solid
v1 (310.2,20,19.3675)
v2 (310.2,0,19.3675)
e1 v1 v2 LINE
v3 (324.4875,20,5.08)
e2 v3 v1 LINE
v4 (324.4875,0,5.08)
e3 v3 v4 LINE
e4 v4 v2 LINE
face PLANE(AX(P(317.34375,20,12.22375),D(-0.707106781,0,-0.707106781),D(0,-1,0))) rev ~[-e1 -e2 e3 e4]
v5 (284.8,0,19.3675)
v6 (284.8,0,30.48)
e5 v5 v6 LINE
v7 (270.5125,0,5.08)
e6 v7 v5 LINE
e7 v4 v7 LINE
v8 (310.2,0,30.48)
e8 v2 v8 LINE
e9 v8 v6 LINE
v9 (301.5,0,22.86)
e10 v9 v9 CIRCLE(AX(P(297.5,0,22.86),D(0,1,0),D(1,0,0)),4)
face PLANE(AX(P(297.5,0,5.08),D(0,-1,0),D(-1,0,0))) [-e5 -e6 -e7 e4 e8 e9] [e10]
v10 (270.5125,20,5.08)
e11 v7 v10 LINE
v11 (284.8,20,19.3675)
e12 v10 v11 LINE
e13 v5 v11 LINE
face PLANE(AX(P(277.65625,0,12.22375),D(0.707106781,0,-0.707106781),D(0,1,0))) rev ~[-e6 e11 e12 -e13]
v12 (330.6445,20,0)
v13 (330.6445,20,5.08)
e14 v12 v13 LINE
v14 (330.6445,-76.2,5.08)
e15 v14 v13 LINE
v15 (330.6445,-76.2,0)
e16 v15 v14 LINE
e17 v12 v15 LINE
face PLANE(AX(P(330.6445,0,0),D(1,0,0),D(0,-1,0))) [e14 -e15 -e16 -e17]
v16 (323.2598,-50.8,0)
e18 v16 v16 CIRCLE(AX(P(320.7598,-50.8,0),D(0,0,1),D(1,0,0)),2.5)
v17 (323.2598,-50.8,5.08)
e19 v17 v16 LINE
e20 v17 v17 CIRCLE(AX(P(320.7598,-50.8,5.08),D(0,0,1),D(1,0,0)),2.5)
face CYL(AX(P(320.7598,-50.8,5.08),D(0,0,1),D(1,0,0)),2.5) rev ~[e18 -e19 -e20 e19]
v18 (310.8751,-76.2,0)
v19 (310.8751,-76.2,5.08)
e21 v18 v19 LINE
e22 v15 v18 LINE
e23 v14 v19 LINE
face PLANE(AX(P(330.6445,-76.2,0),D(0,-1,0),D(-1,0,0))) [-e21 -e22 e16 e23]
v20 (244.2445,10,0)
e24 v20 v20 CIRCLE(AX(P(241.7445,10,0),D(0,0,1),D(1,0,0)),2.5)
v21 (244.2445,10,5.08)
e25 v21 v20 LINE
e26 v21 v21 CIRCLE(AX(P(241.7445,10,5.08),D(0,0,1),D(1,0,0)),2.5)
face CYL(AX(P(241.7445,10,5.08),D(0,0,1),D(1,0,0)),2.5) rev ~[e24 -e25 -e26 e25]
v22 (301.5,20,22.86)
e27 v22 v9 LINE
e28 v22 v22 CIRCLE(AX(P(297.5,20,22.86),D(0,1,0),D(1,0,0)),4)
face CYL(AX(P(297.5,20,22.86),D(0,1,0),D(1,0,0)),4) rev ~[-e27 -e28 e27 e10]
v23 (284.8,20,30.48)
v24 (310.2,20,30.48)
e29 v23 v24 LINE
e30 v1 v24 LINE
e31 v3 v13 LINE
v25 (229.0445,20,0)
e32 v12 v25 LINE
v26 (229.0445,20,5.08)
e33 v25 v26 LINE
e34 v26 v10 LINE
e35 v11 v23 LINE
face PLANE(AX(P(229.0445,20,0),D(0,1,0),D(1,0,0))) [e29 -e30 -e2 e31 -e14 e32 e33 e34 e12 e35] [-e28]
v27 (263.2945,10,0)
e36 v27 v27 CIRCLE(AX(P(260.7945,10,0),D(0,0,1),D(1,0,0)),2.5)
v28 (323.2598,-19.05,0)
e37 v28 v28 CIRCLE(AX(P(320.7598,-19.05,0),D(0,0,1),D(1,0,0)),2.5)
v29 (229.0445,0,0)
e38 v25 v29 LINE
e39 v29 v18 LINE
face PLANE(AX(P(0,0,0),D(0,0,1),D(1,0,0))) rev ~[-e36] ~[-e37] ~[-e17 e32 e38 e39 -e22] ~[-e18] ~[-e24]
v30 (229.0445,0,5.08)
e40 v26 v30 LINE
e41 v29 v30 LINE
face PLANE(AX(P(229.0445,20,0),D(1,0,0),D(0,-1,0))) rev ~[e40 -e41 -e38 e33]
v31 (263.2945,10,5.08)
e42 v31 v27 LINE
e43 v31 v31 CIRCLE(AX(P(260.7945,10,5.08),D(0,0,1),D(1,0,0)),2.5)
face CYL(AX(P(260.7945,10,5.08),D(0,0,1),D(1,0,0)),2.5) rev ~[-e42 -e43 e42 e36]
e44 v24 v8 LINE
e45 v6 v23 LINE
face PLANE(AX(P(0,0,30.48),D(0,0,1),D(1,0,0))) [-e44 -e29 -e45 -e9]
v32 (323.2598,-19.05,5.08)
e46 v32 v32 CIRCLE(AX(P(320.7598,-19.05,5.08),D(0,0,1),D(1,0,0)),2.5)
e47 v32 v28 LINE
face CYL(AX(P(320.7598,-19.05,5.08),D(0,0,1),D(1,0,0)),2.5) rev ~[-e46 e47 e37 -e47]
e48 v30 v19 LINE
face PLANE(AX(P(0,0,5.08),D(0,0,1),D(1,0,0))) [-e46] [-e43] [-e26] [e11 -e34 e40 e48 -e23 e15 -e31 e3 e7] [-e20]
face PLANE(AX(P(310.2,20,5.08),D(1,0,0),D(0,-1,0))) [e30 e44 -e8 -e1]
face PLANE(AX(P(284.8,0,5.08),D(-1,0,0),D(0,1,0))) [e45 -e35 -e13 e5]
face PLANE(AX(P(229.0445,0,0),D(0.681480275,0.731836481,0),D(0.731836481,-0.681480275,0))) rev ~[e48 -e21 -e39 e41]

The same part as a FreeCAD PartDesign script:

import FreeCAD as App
import Part
import Sketcher
from FreeCAD import Vector
Q = App.Units.Quantity


def edges_at(feature, points):
    """Names of the edges that pass closest to the given points."""
    edges = feature.Shape.Edges
    near = lambda p: min(range(len(edges)), key=lambda i: edges[i].distToShape(Part.Vertex(*p))[0])
    return sorted({f"Edge{near(p) + 1}" for p in points})


def add_polygon(sketch, points):
    """Adds a closed chain of lines whose ends are joined by coincident constraints."""
    first, n = sketch.GeometryCount, len(points)
    for a, b in zip(points, points[1:] + points[:1]):
        sketch.addGeometry(Part.LineSegment(App.Vector(*a, 0), App.Vector(*b, 0)), False)
    for i in range(n):
        sketch.addConstraint(Sketcher.Constraint("Coincident", first + i, 2, first + (i + 1) % n, 1))

doc = App.newDocument("Part")
params = doc.addObject("Spreadsheet::Sheet", "Params")
for row, (alias, value) in enumerate([
    ("sketch1_width", "4 in"),
    ("pad1_length", "0.2 in"),
    ("sketch2_width", "1 in"),
    ("pad2_length", "1 in"),
    ("pocket1_length", "4 in"),
    ("chamfer_size", "0.5625 in"),
    ("pocket2_length", "4 in"),
], start=1):
    params.set(f"A{row}", alias)
    params.set(f"B{row}", "=" + value)
    params.setAlias(f"B{row}", alias)

body = doc.addObject("PartDesign::Body", "Body")

# Sketch on XY plane
sketch1 = body.newObject("Sketcher::SketchObject", "Sketch")
sketch1.AttachmentSupport = (doc.getObject("XY_Plane"), [""])
sketch1.MapMode = "FlatFace"
add_polygon(sketch1, [(229.0445, 20), (229.0445, 0), (310.8751, -76.2), (330.6445, -76.2), (330.6445, 20)])  # lines 0-4
sketch1.addConstraint([
    Sketcher.Constraint("Vertical", 0),
    Sketcher.Constraint("Horizontal", 2),
    Sketcher.Constraint("Vertical", 3),
    Sketcher.Constraint("Horizontal", 4),
    Sketcher.Constraint("PointOnObject", 0, 2, -1),
    Sketcher.Constraint("DistanceX", 4, 2, 4, 1, Q("4 in")),
    Sketcher.Constraint("DistanceY", 1, 2, -1, 1, Q("3 in")),
    Sketcher.Constraint("Angle", 1, Q("-42.9594 deg")),
    Sketcher.Constraint("DistanceY", 0, 2, 0, 1, Q("0.7874 in")),
    Sketcher.Constraint("DistanceX", -1, 1, 0, 2, Q("9.0175 in")),
])
sketch1.setExpression("Constraints[10]", "Params.sketch1_width")
pad1 = body.newObject("PartDesign::Pad", "Pad")
pad1.Profile = sketch1
pad1.setExpression("Length", "Params.pad1_length")

# Sketch on XY plane
sketch2 = body.newObject("Sketcher::SketchObject", "Sketch001")
sketch2.AttachmentSupport = (doc.getObject("XY_Plane"), [""])
sketch2.MapMode = "FlatFace"
sketch2.AttachmentOffset = App.Placement(Vector(0, 0, 0.2 * 25.4), App.Rotation())
add_polygon(sketch2, [(284.8, 0), (310.2, 0), (310.2, 20), (284.8, 20)])  # lines 0-3
sketch2.addConstraint([
    Sketcher.Constraint("Horizontal", 0),
    Sketcher.Constraint("Vertical", 1),
    Sketcher.Constraint("Horizontal", 2),
    Sketcher.Constraint("Vertical", 3),
    Sketcher.Constraint("PointOnObject", 0, 2, -1),
    Sketcher.Constraint("DistanceX", 0, 1, 0, 2, Q("1 in")),
    Sketcher.Constraint("DistanceY", 1, 1, 1, 2, Q("0.7874 in")),
    Sketcher.Constraint("DistanceX", -1, 1, 0, 2, Q("12.2126 in")),
])
sketch2.setExpression("Constraints[9]", "Params.sketch2_width")
pad2 = body.newObject("PartDesign::Pad", "Pad001")
pad2.Profile = sketch2
pad2.setExpression("Length", "Params.pad2_length")

# Sketch on XZ plane
sketch3 = body.newObject("Sketcher::SketchObject", "Sketch002")
sketch3.AttachmentSupport = (doc.getObject("XZ_Plane"), [""])
sketch3.MapMode = "FlatFace"
sketch3.AttachmentOffset = App.Placement(Vector(0, 0, -0.7874016 * 25.4), App.Rotation())
sketch3.addGeometry(Part.Circle(Vector(297.5, 22.86, 0), Vector(0, 0, 1), 4), False)
sketch3.addConstraint([
    Sketcher.Constraint("Diameter", 0, 8.0),
    Sketcher.Constraint("DistanceY", -1, 1, 0, 3, Q("0.9 in")),
    Sketcher.Constraint("DistanceX", -1, 1, 0, 3, Q("11.7126 in")),
])
pocket1 = body.newObject("PartDesign::Pocket", "Pocket")
pocket1.Profile = sketch3
pocket1.setExpression("Length", "Params.pocket1_length")
pocket1.Reversed = True
doc.recompute()

chamfer = body.newObject("PartDesign::Chamfer", "Chamfer")
chamfer.Base = (pocket1, edges_at(pocket1, [(284.8, 10, 5.08), (310.2, 10, 5.08)]))
chamfer.setExpression("Size", "Params.chamfer_size")

# Sketch on XY plane
sketch4 = body.newObject("Sketcher::SketchObject", "Sketch003")
sketch4.AttachmentSupport = (doc.getObject("XY_Plane"), [""])
sketch4.MapMode = "FlatFace"
sketch4.AttachmentOffset = App.Placement(Vector(0, 0, 0.2 * 25.4), App.Rotation())
sketch4.addGeometry([
    Part.Circle(Vector(320.7598, -50.8, 0), Vector(0, 0, 1), 2.5),
    Part.Circle(Vector(320.7598, -19.05, 0), Vector(0, 0, 1), 2.5),
    Part.Circle(Vector(241.7445, 10, 0), Vector(0, 0, 1), 2.5),
    Part.Circle(Vector(260.7945, 10, 0), Vector(0, 0, 1), 2.5),
], False)
sketch4.addConstraint([
    Sketcher.Constraint("Equal", 0, 1),
    Sketcher.Constraint("Equal", 1, 2),
    Sketcher.Constraint("Equal", 2, 3),
    Sketcher.Constraint("Horizontal", 2, 3, 3, 3),
    Sketcher.Constraint("Vertical", 0, 3, 1, 3),
    Sketcher.Constraint("Diameter", 0, 5.0),
    Sketcher.Constraint("DistanceY", 1, 3, -1, 1, Q("0.75 in")),
    Sketcher.Constraint("DistanceY", 0, 3, 1, 3, Q("1.25 in")),
    Sketcher.Constraint("DistanceX", 2, 3, 3, 3, Q("0.75 in")),
    Sketcher.Constraint("DistanceX", -1, 1, 2, 3, Q("9.5175 in")),
    Sketcher.Constraint("DistanceY", -1, 1, 2, 3, Q("0.3937 in")),
    Sketcher.Constraint("DistanceX", -1, 1, 0, 3, 320.7598),
])
pocket2 = body.newObject("PartDesign::Pocket", "Pocket001")
pocket2.Profile = sketch4
pocket2.setExpression("Length", "Params.pocket2_length")

doc.recompute()
